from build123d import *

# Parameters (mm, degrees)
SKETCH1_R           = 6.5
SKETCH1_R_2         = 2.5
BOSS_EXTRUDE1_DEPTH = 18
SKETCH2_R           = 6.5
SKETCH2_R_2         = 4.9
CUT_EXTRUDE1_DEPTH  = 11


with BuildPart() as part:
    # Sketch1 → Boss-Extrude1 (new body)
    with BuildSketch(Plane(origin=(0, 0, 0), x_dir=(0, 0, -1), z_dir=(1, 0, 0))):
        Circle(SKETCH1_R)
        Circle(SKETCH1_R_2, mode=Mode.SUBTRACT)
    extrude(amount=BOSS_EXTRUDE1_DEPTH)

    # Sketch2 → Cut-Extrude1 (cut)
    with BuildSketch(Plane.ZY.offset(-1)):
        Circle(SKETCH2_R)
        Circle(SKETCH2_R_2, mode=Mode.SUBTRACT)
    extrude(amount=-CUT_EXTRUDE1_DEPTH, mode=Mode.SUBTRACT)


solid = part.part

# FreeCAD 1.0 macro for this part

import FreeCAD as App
import Part
import Sketcher

doc = App.newDocument("Part")
params = doc.addObject("Spreadsheet::Sheet", "Params")
for row, (alias, value) in enumerate([
    ("sketch1_diameter", "13 mm"),
    ("sketch1_diameter2", "5 mm"),
    ("pad1_length", "18 mm"),
    ("sketch2_diameter", "13 mm"),
    ("sketch2_diameter2", "9.8 mm"),
    ("pocket1_length", "11 mm"),
], start=1):
    params.set(f"A{row}", alias)
    params.set(f"B{row}", "=" + value)
    params.setAlias(f"B{row}", alias)

body = doc.addObject("PartDesign::Body", "Body")

sketch1 = body.newObject("Sketcher::SketchObject", "Sketch")
sketch1.AttachmentSupport = (doc.getObject("YZ_Plane"), [""])
sketch1.MapMode = "FlatFace"
sketch1.addGeometry(Part.Circle(App.Vector(0, 0, 0), App.Vector(0, 0, 1), 6.5), False)
sketch1.addGeometry(Part.Circle(App.Vector(0, 0, 0), App.Vector(0, 0, 1), 2.5), False)
sketch1.addConstraint(Sketcher.Constraint("Coincident", 0, 3, -1, 1))
sketch1.addConstraint(Sketcher.Constraint("Coincident", 1, 3, -1, 1))
sketch1.addConstraint(Sketcher.Constraint("Diameter", 0, 13.0))
sketch1.addConstraint(Sketcher.Constraint("Diameter", 1, 5.0))
sketch1.setExpression("Constraints[2]", "Params.sketch1_diameter")
sketch1.setExpression("Constraints[3]", "Params.sketch1_diameter2")
pad1 = body.newObject("PartDesign::Pad", "Pad")
pad1.Profile = sketch1
pad1.setExpression("Length", "Params.pad1_length")

sketch2 = body.newObject("Sketcher::SketchObject", "Sketch001")
sketch2.AttachmentSupport = (doc.getObject("YZ_Plane"), [""])
sketch2.MapMode = "FlatFace"
sketch2.AttachmentOffset = App.Placement(App.Vector(0, 0, 1), App.Rotation())
sketch2.addGeometry(Part.Circle(App.Vector(0, 0, 0), App.Vector(0, 0, 1), 6.5), False)
sketch2.addGeometry(Part.Circle(App.Vector(0, 0, 0), App.Vector(0, 0, 1), 4.9), False)
sketch2.addConstraint(Sketcher.Constraint("Coincident", 0, 3, -1, 1))
sketch2.addConstraint(Sketcher.Constraint("Coincident", 1, 3, -1, 1))
sketch2.addConstraint(Sketcher.Constraint("Diameter", 0, 13.0))
sketch2.addConstraint(Sketcher.Constraint("Diameter", 1, 9.8))
sketch2.setExpression("Constraints[2]", "Params.sketch2_diameter")
sketch2.setExpression("Constraints[3]", "Params.sketch2_diameter2")
pocket1 = body.newObject("PartDesign::Pocket", "Pocket")
pocket1.Profile = sketch2
pocket1.setExpression("Length", "Params.pocket1_length")
pocket1.Reversed = True

doc.recompute()
